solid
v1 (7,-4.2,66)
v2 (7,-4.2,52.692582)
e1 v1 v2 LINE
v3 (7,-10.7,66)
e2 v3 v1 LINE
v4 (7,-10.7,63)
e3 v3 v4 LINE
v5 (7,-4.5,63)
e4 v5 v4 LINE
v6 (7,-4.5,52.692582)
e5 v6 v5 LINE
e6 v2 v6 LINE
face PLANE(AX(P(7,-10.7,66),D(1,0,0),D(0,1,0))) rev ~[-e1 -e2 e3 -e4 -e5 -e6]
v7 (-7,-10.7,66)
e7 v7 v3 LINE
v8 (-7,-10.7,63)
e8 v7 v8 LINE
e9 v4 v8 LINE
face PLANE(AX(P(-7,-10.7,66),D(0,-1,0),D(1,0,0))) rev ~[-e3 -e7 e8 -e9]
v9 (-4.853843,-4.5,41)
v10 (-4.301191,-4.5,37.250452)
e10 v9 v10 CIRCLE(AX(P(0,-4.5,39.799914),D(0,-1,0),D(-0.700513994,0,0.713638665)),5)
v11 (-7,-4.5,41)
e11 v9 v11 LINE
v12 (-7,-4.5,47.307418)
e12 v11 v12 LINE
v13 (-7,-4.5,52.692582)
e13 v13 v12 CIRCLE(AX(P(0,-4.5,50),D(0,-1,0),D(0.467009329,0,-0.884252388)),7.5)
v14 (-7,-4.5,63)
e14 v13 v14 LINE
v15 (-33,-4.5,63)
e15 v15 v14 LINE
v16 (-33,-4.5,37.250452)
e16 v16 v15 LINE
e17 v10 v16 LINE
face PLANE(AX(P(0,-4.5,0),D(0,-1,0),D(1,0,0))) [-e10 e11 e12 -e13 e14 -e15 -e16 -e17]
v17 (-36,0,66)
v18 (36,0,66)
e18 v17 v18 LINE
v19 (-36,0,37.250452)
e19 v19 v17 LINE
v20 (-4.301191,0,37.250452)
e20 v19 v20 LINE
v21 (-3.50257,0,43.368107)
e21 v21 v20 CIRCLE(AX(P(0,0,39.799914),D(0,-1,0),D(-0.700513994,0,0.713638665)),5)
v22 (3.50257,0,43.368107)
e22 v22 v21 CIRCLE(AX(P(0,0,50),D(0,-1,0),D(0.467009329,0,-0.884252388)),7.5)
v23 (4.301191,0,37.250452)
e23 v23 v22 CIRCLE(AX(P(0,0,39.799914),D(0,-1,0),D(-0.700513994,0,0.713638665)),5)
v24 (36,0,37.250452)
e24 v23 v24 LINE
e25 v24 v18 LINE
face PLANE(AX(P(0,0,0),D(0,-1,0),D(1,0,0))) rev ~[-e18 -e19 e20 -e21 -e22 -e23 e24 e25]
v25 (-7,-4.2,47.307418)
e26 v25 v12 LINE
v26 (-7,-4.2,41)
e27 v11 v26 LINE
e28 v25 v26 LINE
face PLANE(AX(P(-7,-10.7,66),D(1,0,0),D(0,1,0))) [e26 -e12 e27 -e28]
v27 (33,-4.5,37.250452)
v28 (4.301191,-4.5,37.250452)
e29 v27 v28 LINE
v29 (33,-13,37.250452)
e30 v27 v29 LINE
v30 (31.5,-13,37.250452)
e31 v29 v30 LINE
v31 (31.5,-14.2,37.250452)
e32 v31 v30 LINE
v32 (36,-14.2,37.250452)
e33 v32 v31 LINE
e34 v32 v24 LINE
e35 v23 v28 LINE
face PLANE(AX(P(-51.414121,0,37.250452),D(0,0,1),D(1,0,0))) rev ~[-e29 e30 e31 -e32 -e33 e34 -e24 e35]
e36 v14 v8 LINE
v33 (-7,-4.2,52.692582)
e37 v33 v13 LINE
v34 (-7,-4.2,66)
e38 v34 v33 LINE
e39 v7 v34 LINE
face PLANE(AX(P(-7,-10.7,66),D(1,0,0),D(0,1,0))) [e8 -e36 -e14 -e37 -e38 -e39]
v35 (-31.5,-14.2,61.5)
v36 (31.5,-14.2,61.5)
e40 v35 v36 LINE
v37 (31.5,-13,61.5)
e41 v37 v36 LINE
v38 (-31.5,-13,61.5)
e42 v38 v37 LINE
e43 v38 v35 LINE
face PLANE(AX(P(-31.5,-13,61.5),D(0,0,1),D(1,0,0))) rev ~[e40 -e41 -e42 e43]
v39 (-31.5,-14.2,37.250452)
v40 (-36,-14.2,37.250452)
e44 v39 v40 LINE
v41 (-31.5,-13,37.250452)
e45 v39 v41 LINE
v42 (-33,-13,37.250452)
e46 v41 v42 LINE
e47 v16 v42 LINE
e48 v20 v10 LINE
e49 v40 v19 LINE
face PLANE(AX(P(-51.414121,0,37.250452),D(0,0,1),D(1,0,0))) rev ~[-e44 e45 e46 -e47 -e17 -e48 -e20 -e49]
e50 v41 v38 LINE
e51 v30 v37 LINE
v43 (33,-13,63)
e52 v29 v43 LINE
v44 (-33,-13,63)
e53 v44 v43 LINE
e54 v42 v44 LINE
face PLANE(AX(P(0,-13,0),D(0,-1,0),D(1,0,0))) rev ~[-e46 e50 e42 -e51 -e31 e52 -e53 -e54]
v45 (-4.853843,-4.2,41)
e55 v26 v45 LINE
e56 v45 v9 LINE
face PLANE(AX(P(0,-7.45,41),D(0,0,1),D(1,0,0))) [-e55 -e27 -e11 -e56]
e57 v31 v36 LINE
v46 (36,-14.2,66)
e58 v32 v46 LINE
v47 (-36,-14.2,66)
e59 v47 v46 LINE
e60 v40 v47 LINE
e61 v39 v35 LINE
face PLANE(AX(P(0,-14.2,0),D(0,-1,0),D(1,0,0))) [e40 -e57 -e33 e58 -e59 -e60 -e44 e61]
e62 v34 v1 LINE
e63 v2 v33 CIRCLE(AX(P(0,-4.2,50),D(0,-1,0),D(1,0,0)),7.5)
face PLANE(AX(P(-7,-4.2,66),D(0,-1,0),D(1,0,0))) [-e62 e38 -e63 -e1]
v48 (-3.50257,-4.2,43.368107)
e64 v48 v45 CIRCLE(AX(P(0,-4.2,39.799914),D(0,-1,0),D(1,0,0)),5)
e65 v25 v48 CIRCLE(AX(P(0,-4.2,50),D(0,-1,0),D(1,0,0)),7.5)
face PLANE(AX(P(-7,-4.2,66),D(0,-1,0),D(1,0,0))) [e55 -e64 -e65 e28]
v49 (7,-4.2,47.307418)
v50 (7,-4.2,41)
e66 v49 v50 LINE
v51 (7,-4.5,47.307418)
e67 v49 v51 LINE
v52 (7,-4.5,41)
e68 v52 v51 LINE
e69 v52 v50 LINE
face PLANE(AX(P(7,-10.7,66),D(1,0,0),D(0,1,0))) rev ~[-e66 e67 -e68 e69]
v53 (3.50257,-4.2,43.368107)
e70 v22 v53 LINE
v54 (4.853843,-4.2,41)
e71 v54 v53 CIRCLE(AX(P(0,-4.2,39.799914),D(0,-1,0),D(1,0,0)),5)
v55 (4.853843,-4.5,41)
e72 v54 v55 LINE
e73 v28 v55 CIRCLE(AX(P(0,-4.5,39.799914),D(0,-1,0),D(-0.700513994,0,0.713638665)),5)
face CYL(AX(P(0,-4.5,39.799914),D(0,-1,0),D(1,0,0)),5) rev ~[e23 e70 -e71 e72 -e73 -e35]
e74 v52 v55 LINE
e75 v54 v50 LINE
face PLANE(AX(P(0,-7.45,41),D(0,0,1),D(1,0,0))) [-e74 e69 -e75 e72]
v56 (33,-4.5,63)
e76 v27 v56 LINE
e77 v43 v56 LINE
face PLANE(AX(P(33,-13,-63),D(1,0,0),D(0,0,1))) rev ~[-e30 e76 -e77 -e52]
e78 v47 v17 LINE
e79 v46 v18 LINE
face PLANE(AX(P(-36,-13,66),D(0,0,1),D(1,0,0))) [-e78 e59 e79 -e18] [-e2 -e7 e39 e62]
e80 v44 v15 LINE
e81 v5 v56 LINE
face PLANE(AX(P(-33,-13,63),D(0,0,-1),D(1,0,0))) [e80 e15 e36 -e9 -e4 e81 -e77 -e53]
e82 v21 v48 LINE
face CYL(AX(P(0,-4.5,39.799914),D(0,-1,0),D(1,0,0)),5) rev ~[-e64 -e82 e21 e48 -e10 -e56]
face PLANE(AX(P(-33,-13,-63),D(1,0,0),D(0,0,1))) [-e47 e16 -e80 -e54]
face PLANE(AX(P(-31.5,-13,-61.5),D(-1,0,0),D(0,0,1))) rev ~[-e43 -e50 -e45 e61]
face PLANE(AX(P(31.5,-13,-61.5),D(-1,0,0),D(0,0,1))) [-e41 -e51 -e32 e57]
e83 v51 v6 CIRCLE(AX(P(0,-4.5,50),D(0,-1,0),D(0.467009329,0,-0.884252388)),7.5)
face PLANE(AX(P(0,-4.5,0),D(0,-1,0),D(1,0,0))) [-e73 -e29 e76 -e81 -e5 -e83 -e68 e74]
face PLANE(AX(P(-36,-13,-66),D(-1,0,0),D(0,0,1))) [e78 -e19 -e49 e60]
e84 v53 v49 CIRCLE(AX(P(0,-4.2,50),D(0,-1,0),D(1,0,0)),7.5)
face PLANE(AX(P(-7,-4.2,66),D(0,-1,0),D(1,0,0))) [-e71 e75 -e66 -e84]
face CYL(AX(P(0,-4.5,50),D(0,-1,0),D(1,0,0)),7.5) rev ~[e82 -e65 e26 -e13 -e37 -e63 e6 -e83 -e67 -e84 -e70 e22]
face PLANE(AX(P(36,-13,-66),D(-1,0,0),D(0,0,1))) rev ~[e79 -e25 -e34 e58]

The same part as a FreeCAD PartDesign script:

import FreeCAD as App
import Part
import Sketcher
from FreeCAD import Vector


def add_polygon(sketch, points):
    """Adds a closed chain of lines whose ends are joined by coincident constraints."""
    first, n = sketch.GeometryCount, len(points)
    for a, b in zip(points, points[1:] + points[:1]):
        sketch.addGeometry(Part.LineSegment(App.Vector(*a, 0), App.Vector(*b, 0)), False)
    for i in range(n):
        sketch.addConstraint(Sketcher.Constraint("Coincident", first + i, 2, first + (i + 1) % n, 1))

doc = App.newDocument("Part")
body = doc.addObject("PartDesign::Body", "Body")

# Sketch on XZ plane
sketch1 = body.newObject("Sketcher::SketchObject", "Sketch")
sketch1.AttachmentSupport = (doc.getObject("XZ_Plane"), [""])
sketch1.MapMode = "FlatFace"
add_polygon(sketch1, [(-36, 66), (-36, -66), (36, -66), (36, 66)])  # lines 0-3
sketch1.addConstraint(Sketcher.Constraint("Vertical", 0))
sketch1.addConstraint(Sketcher.Constraint("Horizontal", 1))
sketch1.addConstraint(Sketcher.Constraint("Vertical", 2))
sketch1.addConstraint(Sketcher.Constraint("Horizontal", 3))
sketch1.addConstraint(Sketcher.Constraint("Symmetric", 0, 2, 2, 2, -1, 1))
sketch1.addConstraint(Sketcher.Constraint("DistanceX", 1, 1, 1, 2, 72.0))
sketch1.addConstraint(Sketcher.Constraint("DistanceY", 0, 2, 0, 1, 132.0))
pad1 = body.newObject("PartDesign::Pad", "Pad")
pad1.Profile = sketch1
pad1.Length = 13

# Sketch on XZ plane
sketch2 = body.newObject("Sketcher::SketchObject", "Sketch001")
sketch2.AttachmentSupport = (doc.getObject("XZ_Plane"), [""])
sketch2.MapMode = "FlatFace"
sketch2.AttachmentOffset = App.Placement(Vector(0, 0, 13), App.Rotation())
add_polygon(sketch2, [(-33, 63), (-33, -63), (33, -63), (33, 63)])  # lines 0-3
sketch2.addConstraint(Sketcher.Constraint("Vertical", 0))
sketch2.addConstraint(Sketcher.Constraint("Horizontal", 1))
sketch2.addConstraint(Sketcher.Constraint("Vertical", 2))
sketch2.addConstraint(Sketcher.Constraint("Horizontal", 3))
sketch2.addConstraint(Sketcher.Constraint("Symmetric", 0, 2, 2, 2, -1, 1))
sketch2.addConstraint(Sketcher.Constraint("DistanceX", 1, 1, 1, 2, 66.0))
sketch2.addConstraint(Sketcher.Constraint("DistanceY", 0, 2, 0, 1, 126.0))
pocket1 = body.newObject("PartDesign::Pocket", "Pocket")
pocket1.Profile = sketch2
pocket1.Length = 8.5

# Sketch on XZ plane
sketch3 = body.newObject("Sketcher::SketchObject", "Sketch002")
sketch3.AttachmentSupport = (doc.getObject("XZ_Plane"), [""])
sketch3.MapMode = "FlatFace"
sketch3.AttachmentOffset = App.Placement(Vector(0, 0, 13), App.Rotation())
add_polygon(sketch3, [(-36, 66), (-36, -66), (36, -66), (36, 66)])  # lines 0-3
add_polygon(sketch3, [(32, -62), (-32, -62), (-32, 62), (32, 62)])  # lines 4-7
sketch3.addConstraint(Sketcher.Constraint("Vertical", 0))
sketch3.addConstraint(Sketcher.Constraint("Horizontal", 1))
sketch3.addConstraint(Sketcher.Constraint("Vertical", 2))
sketch3.addConstraint(Sketcher.Constraint("Horizontal", 3))
sketch3.addConstraint(Sketcher.Constraint("Horizontal", 4))
sketch3.addConstraint(Sketcher.Constraint("Vertical", 5))
sketch3.addConstraint(Sketcher.Constraint("Horizontal", 6))
sketch3.addConstraint(Sketcher.Constraint("Vertical", 7))
sketch3.addConstraint(Sketcher.Constraint("Symmetric", 0, 2, 2, 2, -1, 1))
sketch3.addConstraint(Sketcher.Constraint("Symmetric", 4, 2, 6, 2, -1, 1))
sketch3.addConstraint(Sketcher.Constraint("DistanceX", 1, 1, 1, 2, 72.0))
sketch3.addConstraint(Sketcher.Constraint("DistanceX", 4, 2, 4, 1, 63.0))
sketch3.addConstraint(Sketcher.Constraint("DistanceY", 0, 2, 0, 1, 132.0))
sketch3.addConstraint(Sketcher.Constraint("DistanceY", 5, 1, 5, 2, 123.0))
pad2 = body.newObject("PartDesign::Pad", "Pad001")
pad2.Profile = sketch3
pad2.Length = 1.2

# Sketch on XZ plane
sketch4 = body.newObject("Sketcher::SketchObject", "Sketch003")
sketch4.AttachmentSupport = (doc.getObject("XZ_Plane"), [""])
sketch4.MapMode = "FlatFace"
sketch4.AttachmentOffset = App.Placement(Vector(0, 0, 4.5), App.Rotation())
sketch4.addGeometry(Part.Circle(Vector(0, 50, 0), Vector(0, 0, 1), 8), False)
sketch4.addConstraint(Sketcher.Constraint("PointOnObject", 0, 3, -2))
sketch4.addConstraint(Sketcher.Constraint("Diameter", 0, 15.0))
sketch4.addConstraint(Sketcher.Constraint("DistanceY", -1, 1, 0, 3, 50.0))
pocket2 = body.newObject("PartDesign::Pocket", "Pocket001")
pocket2.Profile = sketch4
pocket2.Length = 25

# Sketch on XZ plane
sketch5 = body.newObject("Sketcher::SketchObject", "Sketch004")
sketch5.AttachmentSupport = (doc.getObject("XZ_Plane"), [""])
sketch5.MapMode = "FlatFace"
sketch5.AttachmentOffset = App.Placement(Vector(0, 0, 4.5), App.Rotation())
sketch5.addGeometry(Part.Circle(Vector(0, 50, 0), Vector(0, 0, 1), 8), False)
sketch5.addConstraint(Sketcher.Constraint("PointOnObject", 0, 3, -2))
sketch5.addConstraint(Sketcher.Constraint("Diameter", 0, 15.0))
sketch5.addConstraint(Sketcher.Constraint("DistanceY", -1, 1, 0, 3, 50.0))
pocket3 = body.newObject("PartDesign::Pocket", "Pocket002")
pocket3.Profile = sketch5
pocket3.Length = 25

# Sketch on XZ plane
sketch6 = body.newObject("Sketcher::SketchObject", "Sketch005")
sketch6.AttachmentSupport = (doc.getObject("XZ_Plane"), [""])
sketch6.MapMode = "FlatFace"
sketch6.AttachmentOffset = App.Placement(Vector(0, 0, 4.5), App.Rotation())
sketch6.addGeometry(Part.Circle(Vector(0, 40, 0), Vector(0, 0, 1), 5), False)
sketch6.addConstraint(Sketcher.Constraint("PointOnObject", 0, 3, -2))
sketch6.addConstraint(Sketcher.Constraint("Diameter", 0, 10.0))
sketch6.addConstraint(Sketcher.Constraint("DistanceY", -1, 1, 0, 3, 39.799914))
pocket4 = body.newObject("PartDesign::Pocket", "Pocket003")
pocket4.Profile = sketch6
pocket4.Length = 25

# Sketch on XY plane
sketch7 = body.newObject("Sketcher::SketchObject", "Sketch006")
sketch7.AttachmentSupport = (doc.getObject("XY_Plane"), [""])
sketch7.MapMode = "FlatFace"
sketch7.AttachmentOffset = App.Placement(Vector(0, 0, 66), App.Rotation())
add_polygon(sketch7, [(-7, -4), (-7, -11), (7, -11), (7, -4)])  # lines 0-3
sketch7.addConstraint(Sketcher.Constraint("Vertical", 0))
sketch7.addConstraint(Sketcher.Constraint("Horizontal", 1))
sketch7.addConstraint(Sketcher.Constraint("Vertical", 2))
sketch7.addConstraint(Sketcher.Constraint("Horizontal", 3))
sketch7.addConstraint(Sketcher.Constraint("DistanceX", 1, 1, 1, 2, 14.0))
sketch7.addConstraint(Sketcher.Constraint("DistanceY", 0, 2, 0, 1, 6.5))
sketch7.addConstraint(Sketcher.Constraint("DistanceX", 0, 2, -1, 1, 7.0))
sketch7.addConstraint(Sketcher.Constraint("DistanceY", 0, 2, -1, 1, 10.7))
pocket5 = body.newObject("PartDesign::Pocket", "Pocket004")
pocket5.Profile = sketch7
pocket5.Length = 25

# Sketch on XZ plane
sketch8 = body.newObject("Sketcher::SketchObject", "Sketch007")
sketch8.AttachmentSupport = (doc.getObject("XZ_Plane"), [""])
sketch8.MapMode = "FlatFace"
sketch8.AttachmentOffset = App.Placement(Vector(0, 0, 4.5), App.Rotation())
add_polygon(sketch8, [(-17.5, -52.5), (-17.5, -55.5), (17.5, -55.5), (17.5, -52.5)])  # lines 0-3
sketch8.addConstraint(Sketcher.Constraint("Vertical", 0))
sketch8.addConstraint(Sketcher.Constraint("Horizontal", 1))
sketch8.addConstraint(Sketcher.Constraint("Vertical", 2))
sketch8.addConstraint(Sketcher.Constraint("Horizontal", 3))
sketch8.addConstraint(Sketcher.Constraint("DistanceX", 1, 1, 1, 2, 35.0))
sketch8.addConstraint(Sketcher.Constraint("DistanceY", 0, 2, 0, 1, 3.0))
sketch8.addConstraint(Sketcher.Constraint("DistanceX", 0, 2, -1, 1, 17.5))
sketch8.addConstraint(Sketcher.Constraint("DistanceY", 0, 2, -1, 1, 55.5))
pocket6 = body.newObject("PartDesign::Pocket", "Pocket005")
pocket6.Profile = sketch8
pocket6.Length = 25

# Sketch on XZ plane
sketch9 = body.newObject("Sketcher::SketchObject", "Sketch008")
sketch9.AttachmentSupport = (doc.getObject("XZ_Plane"), [""])
sketch9.MapMode = "FlatFace"
add_polygon(sketch9, [(-51, 37), (-51, -70), (44, -70), (44, 37)])  # lines 0-3
sketch9.addConstraint(Sketcher.Constraint("Vertical", 0))
sketch9.addConstraint(Sketcher.Constraint("Horizontal", 1))
sketch9.addConstraint(Sketcher.Constraint("Vertical", 2))
sketch9.addConstraint(Sketcher.Constraint("Horizontal", 3))
sketch9.addConstraint(Sketcher.Constraint("DistanceX", 1, 1, 1, 2, 95.463134))
sketch9.addConstraint(Sketcher.Constraint("DistanceY", 0, 2, 0, 1, 107.643887))
sketch9.addConstraint(Sketcher.Constraint("DistanceX", 0, 2, -1, 1, 51.414121))
sketch9.addConstraint(Sketcher.Constraint("DistanceY", -1, 1, 2, 2, 37.250452))
pocket7 = body.newObject("PartDesign::Pocket", "Pocket006")
pocket7.Profile = sketch9
pocket7.Type = "ThroughAll"
pocket7.Reversed = True

doc.recompute()
